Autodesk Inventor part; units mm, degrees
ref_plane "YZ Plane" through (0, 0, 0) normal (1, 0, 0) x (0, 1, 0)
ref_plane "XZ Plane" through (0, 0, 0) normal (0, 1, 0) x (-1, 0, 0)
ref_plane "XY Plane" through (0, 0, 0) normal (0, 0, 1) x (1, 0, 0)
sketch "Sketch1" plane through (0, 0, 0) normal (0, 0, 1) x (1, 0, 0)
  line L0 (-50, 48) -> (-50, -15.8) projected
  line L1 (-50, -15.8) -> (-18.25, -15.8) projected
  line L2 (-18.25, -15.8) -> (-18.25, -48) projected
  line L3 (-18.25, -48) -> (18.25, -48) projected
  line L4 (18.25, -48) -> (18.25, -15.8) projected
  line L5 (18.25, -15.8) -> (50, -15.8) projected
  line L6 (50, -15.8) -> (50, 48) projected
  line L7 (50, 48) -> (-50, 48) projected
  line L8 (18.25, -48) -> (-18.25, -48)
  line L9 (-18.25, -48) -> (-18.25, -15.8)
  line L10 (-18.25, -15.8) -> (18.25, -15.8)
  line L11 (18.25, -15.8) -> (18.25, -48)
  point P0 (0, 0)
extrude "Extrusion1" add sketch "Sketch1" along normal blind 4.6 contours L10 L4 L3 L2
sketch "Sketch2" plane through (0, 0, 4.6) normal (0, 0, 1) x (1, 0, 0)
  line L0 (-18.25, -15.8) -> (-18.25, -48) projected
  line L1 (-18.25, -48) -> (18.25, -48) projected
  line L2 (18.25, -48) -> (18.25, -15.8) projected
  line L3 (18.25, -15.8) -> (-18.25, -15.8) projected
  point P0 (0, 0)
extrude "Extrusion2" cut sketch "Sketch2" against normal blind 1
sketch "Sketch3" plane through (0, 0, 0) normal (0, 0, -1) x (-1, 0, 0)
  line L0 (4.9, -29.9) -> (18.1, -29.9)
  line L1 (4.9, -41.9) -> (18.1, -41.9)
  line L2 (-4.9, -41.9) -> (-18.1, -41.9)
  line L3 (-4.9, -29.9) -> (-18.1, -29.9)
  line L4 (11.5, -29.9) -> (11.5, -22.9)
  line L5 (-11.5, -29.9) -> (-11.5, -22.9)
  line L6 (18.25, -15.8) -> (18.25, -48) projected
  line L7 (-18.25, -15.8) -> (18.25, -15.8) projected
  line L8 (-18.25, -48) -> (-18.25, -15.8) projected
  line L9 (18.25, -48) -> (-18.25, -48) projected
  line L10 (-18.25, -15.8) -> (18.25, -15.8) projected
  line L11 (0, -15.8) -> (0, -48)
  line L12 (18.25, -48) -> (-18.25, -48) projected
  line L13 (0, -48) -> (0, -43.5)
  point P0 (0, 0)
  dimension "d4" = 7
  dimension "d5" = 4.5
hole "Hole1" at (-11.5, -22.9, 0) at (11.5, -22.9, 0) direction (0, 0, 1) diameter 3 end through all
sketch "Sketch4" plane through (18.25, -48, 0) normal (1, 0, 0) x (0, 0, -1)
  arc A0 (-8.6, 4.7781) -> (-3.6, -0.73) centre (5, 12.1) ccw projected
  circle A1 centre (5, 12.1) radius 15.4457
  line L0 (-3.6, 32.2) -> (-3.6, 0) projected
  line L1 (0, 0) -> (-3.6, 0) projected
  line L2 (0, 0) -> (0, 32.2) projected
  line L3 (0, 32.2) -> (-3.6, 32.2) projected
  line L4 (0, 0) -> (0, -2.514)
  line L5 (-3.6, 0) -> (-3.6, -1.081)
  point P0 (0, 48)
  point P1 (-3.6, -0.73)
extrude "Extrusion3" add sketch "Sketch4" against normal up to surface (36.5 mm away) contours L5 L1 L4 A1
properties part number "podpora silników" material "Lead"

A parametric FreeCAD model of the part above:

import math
import FreeCAD as App
import Part
import Sketcher

doc = App.newDocument("Part")
body = doc.addObject("PartDesign::Body", "Body")

sketch1 = body.newObject("Sketcher::SketchObject", "Sketch")
sketch1.AttachmentSupport = (doc.getObject("XY_Plane"), [""])
sketch1.MapMode = "FlatFace"
sketch1.addGeometry([
    Part.LineSegment(App.Vector(18, -16, 0), App.Vector(-18, -16, 0)),
    Part.LineSegment(App.Vector(-18, -16, 0), App.Vector(-18, -48, 0)),
    Part.LineSegment(App.Vector(-18, -48, 0), App.Vector(18, -48, 0)),
    Part.LineSegment(App.Vector(18, -48, 0), App.Vector(18, -16, 0)),
], False)
sketch1.addConstraint([
    Sketcher.Constraint("Coincident", 0, 2, 1, 1),
    Sketcher.Constraint("Coincident", 1, 2, 2, 1),
    Sketcher.Constraint("Coincident", 2, 2, 3, 1),
    Sketcher.Constraint("Coincident", 3, 2, 0, 1),
    Sketcher.Constraint("Horizontal", 0),
    Sketcher.Constraint("Vertical", 1),
    Sketcher.Constraint("Horizontal", 2),
    Sketcher.Constraint("Vertical", 3),
    Sketcher.Constraint("DistanceX", 0, 2, 0, 1, 36.5),
    Sketcher.Constraint("DistanceY", 1, 2, 1, 1, 32.2),
    Sketcher.Constraint("DistanceY", 1, 2, -1, 1, 48.0),
    Sketcher.Constraint("DistanceX", 0, 2, -1, 1, 18.25),
])
pad1 = body.newObject("PartDesign::Pad", "Pad")
pad1.Profile = sketch1
pad1.Length = 4.6

sketch2 = body.newObject("Sketcher::SketchObject", "Sketch001")
sketch2.AttachmentSupport = (doc.getObject("XY_Plane"), [""])
sketch2.MapMode = "FlatFace"
sketch2.AttachmentOffset = App.Placement(App.Vector(0, 0, 4.6), App.Rotation())
sketch2.addGeometry([
    Part.LineSegment(App.Vector(18, -16, 0), App.Vector(-18, -16, 0)),
    Part.LineSegment(App.Vector(-18, -16, 0), App.Vector(-18, -48, 0)),
    Part.LineSegment(App.Vector(-18, -48, 0), App.Vector(18, -48, 0)),
    Part.LineSegment(App.Vector(18, -48, 0), App.Vector(18, -16, 0)),
], False)
sketch2.addConstraint([
    Sketcher.Constraint("Coincident", 0, 2, 1, 1),
    Sketcher.Constraint("Coincident", 1, 2, 2, 1),
    Sketcher.Constraint("Coincident", 2, 2, 3, 1),
    Sketcher.Constraint("Coincident", 3, 2, 0, 1),
    Sketcher.Constraint("Horizontal", 0),
    Sketcher.Constraint("Vertical", 1),
    Sketcher.Constraint("Horizontal", 2),
    Sketcher.Constraint("Vertical", 3),
    Sketcher.Constraint("DistanceX", 0, 2, 0, 1, 36.5),
    Sketcher.Constraint("DistanceY", 1, 2, 1, 1, 32.2),
    Sketcher.Constraint("DistanceY", 1, 2, -1, 1, 48.0),
    Sketcher.Constraint("DistanceX", 0, 2, -1, 1, 18.25),
])
pocket1 = body.newObject("PartDesign::Pocket", "Pocket")
pocket1.Profile = sketch2
pocket1.Length = 1

sketch3 = body.newObject("Sketcher::SketchObject", "Sketch002")
sketch3.AttachmentSupport = (doc.getObject("XY_Plane"), [""])
sketch3.MapMode = "FlatFace"
sketch3.addGeometry([
    Part.Circle(App.Vector(-11.5, -22.9, 0), App.Vector(0, 0, 1), 1.5),
    Part.Circle(App.Vector(11.5, -22.9, 0), App.Vector(0, 0, 1), 1.5),
], False)
sketch3.addConstraint([
    Sketcher.Constraint("Equal", 0, 1),
    Sketcher.Constraint("Symmetric", 0, 3, 1, 3, -2),
    Sketcher.Constraint("Diameter", 0, 3.0),
    Sketcher.Constraint("DistanceX", 0, 3, 1, 3, 23.0),
    Sketcher.Constraint("DistanceY", 0, 3, -1, 1, 22.9),
])
doc.recompute()
hole = body.newObject("PartDesign::Hole", "Hole")
hole.Profile = sketch3
hole.ThreadType = "None"
hole.Diameter = 3
hole.DepthType = "ThroughAll"
hole.Reversed = True

sketch4 = body.newObject("Sketcher::SketchObject", "Sketch003")
sketch4.AttachmentSupport = (doc.getObject("YZ_Plane"), [""])
sketch4.MapMode = "FlatFace"
sketch4.AttachmentOffset = App.Placement(App.Vector(0, 0, 18.25), App.Rotation())
sketch4.addGeometry([
    Part.LineSegment(App.Vector(-48, 3.6, 0), App.Vector(-48.7, 3.6, 0)),
    Part.ArcOfCircle(Part.Circle(App.Vector(-35.9, -5, 0), App.Vector(0, 0, 1), 15.4), math.radians(146.17), math.radians(161.11)),
    Part.LineSegment(App.Vector(-50.5, 0, 0), App.Vector(-48, 0, 0)),
    Part.LineSegment(App.Vector(-48, 0, 0), App.Vector(-48, 3.6, 0)),
], False)
sketch4.addConstraint([
    Sketcher.Constraint("Coincident", 0, 2, 1, 1),
    Sketcher.Constraint("Coincident", 1, 2, 2, 1),
    Sketcher.Constraint("Coincident", 2, 2, 3, 1),
    Sketcher.Constraint("Coincident", 3, 2, 0, 1),
    Sketcher.Constraint("Horizontal", 0),
    Sketcher.Constraint("Horizontal", 2),
    Sketcher.Constraint("Vertical", 3),
    Sketcher.Constraint("PointOnObject", 1, 2, -1),
    Sketcher.Constraint("DistanceY", 3, 1, 3, 2, 3.6),
    Sketcher.Constraint("DistanceY", 1, 3, -1, 1, 5.0),
    Sketcher.Constraint("DistanceX", 2, 2, -1, 1, 48.0),
    Sketcher.Constraint("DistanceX", 0, 2, 0, 1, 0.73),
    Sketcher.Constraint("DistanceX", 1, 3, -1, 1, 35.9),
])
pad2 = body.newObject("PartDesign::Pad", "Pad001")
pad2.Profile = sketch4
pad2.Length = 36.5
pad2.Reversed = True

doc.recompute()
